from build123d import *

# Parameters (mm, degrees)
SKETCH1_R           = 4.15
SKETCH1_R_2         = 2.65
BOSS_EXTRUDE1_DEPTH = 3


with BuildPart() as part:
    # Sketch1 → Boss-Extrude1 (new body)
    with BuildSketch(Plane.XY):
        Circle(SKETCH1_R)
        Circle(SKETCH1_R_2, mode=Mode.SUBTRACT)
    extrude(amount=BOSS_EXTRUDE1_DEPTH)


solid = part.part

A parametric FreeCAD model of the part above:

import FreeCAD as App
import Part
import Sketcher

V = App.Vector

doc = App.newDocument("Part")
params = doc.addObject("Spreadsheet::Sheet", "Params")
for row, (alias, value) in enumerate([
    ("sketch1_diameter", "8.3 mm"),
    ("sketch1_diameter2", "5.3 mm"),
    ("pad1_length", "3 mm"),
], start=1):
    params.set(f"A{row}", alias)
    params.set(f"B{row}", "=" + value)
    params.setAlias(f"B{row}", alias)

body = doc.addObject("PartDesign::Body", "Body")

# Sketch on XY plane
sketch1 = body.newObject("Sketcher::SketchObject", "Sketch")
sketch1.AttachmentSupport = (doc.getObject("XY_Plane"), [""])
sketch1.MapMode = "FlatFace"
sketch1.addGeometry(Part.Circle(V(0, 0, 0), V(0, 0, 1), 4.2), False)
sketch1.addGeometry(Part.Circle(V(0, 0, 0), V(0, 0, 1), 2.6), False)
sketch1.addConstraint(Sketcher.Constraint("Coincident", 0, 3, -1, 1))
sketch1.addConstraint(Sketcher.Constraint("Coincident", 1, 3, -1, 1))
sketch1.addConstraint(Sketcher.Constraint("Diameter", 0, 8.3))
sketch1.addConstraint(Sketcher.Constraint("Diameter", 1, 5.3))
sketch1.setExpression("Constraints[2]", "Params.sketch1_diameter")
sketch1.setExpression("Constraints[3]", "Params.sketch1_diameter2")
pad1 = body.newObject("PartDesign::Pad", "Pad")
pad1.Profile = sketch1
pad1.setExpression("Length", "Params.pad1_length")

doc.recompute()
